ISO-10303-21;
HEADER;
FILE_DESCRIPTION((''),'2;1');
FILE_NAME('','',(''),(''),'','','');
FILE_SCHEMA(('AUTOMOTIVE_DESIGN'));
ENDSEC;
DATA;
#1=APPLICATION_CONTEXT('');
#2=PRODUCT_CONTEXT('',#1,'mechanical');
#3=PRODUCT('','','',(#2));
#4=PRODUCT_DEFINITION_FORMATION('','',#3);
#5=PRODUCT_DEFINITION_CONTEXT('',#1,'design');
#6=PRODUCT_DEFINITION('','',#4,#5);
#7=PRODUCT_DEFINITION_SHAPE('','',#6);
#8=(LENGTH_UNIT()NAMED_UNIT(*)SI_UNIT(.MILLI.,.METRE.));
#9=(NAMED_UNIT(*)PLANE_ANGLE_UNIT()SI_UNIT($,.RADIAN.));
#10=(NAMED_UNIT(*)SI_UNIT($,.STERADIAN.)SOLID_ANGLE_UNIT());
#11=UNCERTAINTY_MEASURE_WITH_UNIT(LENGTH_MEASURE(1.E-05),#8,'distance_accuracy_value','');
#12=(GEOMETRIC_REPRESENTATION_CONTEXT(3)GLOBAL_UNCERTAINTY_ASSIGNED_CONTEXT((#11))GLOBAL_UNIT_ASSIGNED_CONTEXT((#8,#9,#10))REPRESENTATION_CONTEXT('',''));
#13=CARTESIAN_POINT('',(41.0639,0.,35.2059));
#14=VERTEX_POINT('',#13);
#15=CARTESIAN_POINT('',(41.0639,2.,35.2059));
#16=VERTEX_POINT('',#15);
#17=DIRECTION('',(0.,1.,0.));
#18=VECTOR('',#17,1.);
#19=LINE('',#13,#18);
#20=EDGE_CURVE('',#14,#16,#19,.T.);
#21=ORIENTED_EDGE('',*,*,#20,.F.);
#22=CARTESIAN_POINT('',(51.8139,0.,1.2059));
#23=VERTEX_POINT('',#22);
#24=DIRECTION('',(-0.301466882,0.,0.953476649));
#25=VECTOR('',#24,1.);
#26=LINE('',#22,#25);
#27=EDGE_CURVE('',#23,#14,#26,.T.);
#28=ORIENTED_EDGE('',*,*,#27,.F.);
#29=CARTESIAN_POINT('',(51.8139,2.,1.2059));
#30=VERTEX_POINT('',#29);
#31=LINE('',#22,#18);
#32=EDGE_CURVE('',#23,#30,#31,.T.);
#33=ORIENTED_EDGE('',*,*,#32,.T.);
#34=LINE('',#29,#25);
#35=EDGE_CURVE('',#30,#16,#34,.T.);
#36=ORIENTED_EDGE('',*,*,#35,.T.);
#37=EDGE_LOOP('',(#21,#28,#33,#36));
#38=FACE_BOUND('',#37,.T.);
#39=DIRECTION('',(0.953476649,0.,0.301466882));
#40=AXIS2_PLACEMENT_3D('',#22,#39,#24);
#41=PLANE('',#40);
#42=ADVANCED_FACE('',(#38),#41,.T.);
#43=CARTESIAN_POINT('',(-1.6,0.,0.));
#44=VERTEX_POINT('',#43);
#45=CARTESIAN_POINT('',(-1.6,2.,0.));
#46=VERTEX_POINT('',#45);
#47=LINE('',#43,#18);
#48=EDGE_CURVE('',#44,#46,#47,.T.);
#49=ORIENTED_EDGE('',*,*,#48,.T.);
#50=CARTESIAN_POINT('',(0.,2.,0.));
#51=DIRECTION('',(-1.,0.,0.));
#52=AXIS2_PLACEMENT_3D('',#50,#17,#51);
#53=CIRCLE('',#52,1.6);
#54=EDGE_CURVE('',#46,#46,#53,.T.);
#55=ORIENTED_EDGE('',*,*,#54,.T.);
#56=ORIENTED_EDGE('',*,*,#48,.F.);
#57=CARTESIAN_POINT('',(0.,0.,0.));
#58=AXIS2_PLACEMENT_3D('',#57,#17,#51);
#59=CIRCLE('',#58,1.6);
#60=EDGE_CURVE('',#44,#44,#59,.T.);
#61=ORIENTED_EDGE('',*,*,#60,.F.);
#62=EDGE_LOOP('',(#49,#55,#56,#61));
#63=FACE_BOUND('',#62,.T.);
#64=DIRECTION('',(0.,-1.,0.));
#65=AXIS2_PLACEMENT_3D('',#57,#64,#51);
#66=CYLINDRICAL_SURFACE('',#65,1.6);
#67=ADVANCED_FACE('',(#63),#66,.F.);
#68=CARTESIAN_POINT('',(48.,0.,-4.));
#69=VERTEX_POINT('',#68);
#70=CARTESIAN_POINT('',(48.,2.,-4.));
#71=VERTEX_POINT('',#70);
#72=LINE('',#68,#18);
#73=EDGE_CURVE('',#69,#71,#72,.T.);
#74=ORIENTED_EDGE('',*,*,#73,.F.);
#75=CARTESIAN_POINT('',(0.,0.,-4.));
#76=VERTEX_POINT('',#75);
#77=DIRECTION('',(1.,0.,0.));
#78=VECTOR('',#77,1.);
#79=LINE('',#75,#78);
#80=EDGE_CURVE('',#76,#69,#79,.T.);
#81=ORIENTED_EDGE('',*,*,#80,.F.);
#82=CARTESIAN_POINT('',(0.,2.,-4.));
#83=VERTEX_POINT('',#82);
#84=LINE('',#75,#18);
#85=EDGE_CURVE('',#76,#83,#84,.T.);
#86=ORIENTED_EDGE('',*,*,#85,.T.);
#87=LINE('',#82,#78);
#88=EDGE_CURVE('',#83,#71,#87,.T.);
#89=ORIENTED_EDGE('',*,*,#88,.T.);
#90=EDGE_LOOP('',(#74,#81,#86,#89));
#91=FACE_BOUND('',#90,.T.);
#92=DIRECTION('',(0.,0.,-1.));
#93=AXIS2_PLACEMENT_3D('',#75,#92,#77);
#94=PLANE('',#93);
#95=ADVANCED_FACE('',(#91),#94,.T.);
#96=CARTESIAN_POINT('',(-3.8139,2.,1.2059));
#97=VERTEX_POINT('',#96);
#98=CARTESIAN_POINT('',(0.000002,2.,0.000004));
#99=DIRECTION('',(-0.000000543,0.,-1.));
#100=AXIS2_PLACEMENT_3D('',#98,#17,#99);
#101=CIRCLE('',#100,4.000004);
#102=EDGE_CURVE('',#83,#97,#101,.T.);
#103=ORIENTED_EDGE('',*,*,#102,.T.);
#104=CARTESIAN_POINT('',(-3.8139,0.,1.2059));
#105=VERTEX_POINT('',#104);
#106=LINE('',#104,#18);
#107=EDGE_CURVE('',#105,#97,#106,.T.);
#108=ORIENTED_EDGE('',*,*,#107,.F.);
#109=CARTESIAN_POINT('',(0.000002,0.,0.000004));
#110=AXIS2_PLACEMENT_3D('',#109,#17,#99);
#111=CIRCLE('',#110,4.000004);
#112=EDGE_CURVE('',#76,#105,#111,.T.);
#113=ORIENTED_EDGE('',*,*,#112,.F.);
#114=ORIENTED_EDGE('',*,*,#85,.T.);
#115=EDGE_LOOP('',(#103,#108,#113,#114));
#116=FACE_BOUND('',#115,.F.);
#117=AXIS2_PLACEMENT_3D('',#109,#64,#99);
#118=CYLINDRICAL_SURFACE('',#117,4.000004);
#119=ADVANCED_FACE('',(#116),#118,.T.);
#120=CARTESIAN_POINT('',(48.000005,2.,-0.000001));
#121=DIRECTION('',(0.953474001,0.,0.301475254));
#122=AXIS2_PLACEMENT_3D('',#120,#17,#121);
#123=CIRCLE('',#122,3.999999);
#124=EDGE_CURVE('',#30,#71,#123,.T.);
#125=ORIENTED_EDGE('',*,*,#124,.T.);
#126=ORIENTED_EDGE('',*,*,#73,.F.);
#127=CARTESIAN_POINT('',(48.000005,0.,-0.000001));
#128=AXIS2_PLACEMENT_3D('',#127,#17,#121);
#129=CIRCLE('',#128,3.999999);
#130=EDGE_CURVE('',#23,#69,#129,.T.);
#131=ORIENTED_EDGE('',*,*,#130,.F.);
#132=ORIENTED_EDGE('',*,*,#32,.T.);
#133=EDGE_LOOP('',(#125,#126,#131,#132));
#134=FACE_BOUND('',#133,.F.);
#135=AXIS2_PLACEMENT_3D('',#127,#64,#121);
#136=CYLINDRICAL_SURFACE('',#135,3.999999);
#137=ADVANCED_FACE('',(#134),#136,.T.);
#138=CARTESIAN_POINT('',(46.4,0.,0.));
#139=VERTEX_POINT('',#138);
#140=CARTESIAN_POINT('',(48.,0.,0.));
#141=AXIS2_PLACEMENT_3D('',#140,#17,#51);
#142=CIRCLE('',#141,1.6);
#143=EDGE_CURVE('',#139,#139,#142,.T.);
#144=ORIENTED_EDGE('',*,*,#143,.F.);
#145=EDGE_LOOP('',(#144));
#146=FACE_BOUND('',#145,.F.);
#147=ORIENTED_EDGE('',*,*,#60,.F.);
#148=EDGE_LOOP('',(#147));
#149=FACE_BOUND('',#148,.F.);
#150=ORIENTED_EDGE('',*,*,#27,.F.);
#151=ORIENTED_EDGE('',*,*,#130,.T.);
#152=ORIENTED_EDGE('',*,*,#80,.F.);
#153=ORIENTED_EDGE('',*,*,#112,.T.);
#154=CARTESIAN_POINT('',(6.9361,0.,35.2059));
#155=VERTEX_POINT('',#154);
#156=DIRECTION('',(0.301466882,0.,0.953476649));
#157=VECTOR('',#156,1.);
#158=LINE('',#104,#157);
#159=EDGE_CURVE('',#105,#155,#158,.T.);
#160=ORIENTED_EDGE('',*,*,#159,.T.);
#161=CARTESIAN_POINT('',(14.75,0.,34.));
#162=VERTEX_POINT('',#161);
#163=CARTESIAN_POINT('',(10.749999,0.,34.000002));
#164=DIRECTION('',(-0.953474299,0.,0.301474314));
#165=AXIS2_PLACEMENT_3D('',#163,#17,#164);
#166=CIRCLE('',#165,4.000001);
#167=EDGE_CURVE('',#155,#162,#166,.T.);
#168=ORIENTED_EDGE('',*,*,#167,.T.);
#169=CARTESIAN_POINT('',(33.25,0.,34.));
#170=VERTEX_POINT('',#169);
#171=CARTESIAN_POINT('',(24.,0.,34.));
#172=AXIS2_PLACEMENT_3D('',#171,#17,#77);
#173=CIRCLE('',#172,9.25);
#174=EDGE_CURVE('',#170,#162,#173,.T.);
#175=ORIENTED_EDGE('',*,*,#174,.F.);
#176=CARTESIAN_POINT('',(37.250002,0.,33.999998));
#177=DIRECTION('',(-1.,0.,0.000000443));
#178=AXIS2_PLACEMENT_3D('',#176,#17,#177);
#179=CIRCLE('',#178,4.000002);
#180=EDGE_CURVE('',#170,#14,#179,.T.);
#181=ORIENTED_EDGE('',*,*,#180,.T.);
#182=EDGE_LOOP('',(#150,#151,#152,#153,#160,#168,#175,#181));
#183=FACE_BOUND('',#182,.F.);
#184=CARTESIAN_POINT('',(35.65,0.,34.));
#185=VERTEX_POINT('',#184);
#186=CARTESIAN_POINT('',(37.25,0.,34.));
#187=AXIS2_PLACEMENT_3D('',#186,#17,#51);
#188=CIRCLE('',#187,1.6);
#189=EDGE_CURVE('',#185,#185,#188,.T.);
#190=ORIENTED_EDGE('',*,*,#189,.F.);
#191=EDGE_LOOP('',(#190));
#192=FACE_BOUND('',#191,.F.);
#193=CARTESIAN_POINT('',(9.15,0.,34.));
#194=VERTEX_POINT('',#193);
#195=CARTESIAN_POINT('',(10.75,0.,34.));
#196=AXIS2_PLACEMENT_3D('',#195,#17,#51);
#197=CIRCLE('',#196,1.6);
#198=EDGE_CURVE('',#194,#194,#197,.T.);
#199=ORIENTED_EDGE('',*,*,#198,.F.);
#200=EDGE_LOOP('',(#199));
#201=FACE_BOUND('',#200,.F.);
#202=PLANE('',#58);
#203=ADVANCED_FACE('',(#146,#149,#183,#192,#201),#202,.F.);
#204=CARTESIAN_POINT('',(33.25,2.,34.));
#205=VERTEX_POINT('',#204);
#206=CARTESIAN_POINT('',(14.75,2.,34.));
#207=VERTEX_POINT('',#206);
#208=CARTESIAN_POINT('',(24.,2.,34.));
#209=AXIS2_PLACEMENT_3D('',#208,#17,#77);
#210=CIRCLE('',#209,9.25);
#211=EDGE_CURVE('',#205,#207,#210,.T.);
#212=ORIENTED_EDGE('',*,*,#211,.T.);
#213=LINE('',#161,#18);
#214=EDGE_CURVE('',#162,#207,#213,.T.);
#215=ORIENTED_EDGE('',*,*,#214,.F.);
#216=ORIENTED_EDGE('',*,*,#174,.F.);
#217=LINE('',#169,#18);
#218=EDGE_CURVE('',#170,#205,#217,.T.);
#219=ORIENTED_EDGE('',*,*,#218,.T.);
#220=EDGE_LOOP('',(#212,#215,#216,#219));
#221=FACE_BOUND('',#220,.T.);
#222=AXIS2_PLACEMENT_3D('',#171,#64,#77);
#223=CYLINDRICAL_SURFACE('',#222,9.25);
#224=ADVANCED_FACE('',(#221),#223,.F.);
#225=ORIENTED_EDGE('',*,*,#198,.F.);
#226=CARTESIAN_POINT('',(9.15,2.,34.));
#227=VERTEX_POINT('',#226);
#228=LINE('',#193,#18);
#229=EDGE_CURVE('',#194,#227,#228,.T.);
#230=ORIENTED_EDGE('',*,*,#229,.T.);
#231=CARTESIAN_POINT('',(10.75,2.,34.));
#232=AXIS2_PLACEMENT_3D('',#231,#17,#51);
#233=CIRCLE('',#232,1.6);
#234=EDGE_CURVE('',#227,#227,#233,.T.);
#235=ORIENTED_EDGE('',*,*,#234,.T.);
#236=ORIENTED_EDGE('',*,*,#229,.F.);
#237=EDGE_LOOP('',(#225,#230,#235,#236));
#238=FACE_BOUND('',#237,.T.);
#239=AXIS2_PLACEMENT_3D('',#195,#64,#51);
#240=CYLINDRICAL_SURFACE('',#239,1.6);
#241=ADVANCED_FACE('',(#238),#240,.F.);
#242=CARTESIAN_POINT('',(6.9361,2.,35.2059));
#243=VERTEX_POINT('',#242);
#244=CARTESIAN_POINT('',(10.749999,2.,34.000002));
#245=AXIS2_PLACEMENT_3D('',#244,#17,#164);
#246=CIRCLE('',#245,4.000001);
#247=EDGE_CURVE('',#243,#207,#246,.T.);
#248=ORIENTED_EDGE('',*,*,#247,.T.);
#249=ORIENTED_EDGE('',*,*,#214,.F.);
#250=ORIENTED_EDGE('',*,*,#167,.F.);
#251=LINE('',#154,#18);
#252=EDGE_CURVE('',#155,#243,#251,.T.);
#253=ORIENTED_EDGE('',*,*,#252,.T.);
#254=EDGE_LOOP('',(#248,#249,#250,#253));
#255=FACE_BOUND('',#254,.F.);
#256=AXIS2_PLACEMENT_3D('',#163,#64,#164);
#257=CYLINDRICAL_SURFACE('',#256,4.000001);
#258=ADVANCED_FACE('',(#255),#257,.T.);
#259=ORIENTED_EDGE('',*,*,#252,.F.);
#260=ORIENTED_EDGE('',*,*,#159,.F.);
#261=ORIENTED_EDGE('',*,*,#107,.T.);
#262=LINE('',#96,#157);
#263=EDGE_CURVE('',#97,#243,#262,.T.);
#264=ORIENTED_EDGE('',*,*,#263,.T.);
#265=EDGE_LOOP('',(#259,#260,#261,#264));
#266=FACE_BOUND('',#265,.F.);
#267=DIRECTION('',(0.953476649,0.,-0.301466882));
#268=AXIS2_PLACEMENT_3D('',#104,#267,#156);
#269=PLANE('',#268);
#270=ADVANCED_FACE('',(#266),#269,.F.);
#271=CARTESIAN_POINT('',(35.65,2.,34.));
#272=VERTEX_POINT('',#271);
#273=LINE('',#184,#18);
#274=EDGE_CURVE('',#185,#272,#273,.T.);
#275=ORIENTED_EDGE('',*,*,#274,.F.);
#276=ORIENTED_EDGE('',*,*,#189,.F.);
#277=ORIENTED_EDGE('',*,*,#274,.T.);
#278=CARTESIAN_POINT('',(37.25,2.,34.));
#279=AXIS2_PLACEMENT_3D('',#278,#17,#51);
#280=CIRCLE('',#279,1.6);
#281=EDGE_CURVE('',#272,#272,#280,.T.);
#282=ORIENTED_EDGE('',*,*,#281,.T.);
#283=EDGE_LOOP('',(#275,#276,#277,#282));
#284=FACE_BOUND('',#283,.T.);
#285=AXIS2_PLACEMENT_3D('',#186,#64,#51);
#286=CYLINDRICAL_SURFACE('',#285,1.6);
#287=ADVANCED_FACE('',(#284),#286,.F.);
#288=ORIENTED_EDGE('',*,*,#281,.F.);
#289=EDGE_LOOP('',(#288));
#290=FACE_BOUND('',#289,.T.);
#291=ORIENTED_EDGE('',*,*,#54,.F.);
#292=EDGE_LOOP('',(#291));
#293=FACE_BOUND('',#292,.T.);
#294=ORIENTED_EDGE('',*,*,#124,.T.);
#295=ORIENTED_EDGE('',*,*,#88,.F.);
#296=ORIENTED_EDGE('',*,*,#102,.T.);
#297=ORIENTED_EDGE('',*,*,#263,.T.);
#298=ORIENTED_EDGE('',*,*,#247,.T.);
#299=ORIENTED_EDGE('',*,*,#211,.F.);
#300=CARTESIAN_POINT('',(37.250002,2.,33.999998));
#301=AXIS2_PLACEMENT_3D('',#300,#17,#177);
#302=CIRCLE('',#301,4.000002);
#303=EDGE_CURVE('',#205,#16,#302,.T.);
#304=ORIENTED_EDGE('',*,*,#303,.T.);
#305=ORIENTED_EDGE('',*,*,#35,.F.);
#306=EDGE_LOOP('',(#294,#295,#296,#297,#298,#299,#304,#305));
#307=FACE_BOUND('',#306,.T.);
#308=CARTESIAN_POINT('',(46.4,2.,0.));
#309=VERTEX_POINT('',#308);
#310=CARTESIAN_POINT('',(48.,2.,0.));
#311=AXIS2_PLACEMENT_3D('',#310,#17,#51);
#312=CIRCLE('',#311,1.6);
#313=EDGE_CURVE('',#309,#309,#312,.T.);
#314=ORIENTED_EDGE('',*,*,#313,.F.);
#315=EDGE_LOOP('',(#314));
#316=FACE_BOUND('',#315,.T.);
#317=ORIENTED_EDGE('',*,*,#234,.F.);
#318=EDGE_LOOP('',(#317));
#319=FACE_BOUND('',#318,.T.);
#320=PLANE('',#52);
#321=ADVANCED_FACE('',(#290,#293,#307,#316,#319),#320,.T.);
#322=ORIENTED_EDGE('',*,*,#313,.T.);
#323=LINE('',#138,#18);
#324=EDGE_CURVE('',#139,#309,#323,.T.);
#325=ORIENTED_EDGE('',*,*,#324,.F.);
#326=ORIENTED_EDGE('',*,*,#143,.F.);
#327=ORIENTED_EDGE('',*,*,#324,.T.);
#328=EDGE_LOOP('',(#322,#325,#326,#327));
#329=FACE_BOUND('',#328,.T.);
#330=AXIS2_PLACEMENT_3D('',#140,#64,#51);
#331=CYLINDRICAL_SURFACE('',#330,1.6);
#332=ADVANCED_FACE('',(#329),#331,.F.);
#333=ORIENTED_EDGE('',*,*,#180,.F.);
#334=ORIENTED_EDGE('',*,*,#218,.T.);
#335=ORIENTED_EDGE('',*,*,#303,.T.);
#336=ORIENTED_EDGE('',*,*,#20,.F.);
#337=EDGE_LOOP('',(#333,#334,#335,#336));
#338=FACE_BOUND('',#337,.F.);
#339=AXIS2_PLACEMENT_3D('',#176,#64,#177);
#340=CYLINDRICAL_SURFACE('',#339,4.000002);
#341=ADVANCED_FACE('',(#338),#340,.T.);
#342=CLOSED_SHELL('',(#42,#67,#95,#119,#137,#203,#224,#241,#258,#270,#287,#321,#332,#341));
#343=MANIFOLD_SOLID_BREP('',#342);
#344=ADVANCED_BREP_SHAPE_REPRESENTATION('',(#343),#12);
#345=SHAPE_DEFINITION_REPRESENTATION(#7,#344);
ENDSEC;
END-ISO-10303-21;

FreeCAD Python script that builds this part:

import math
import FreeCAD as App
import Part
import Sketcher
from FreeCAD import Vector

doc = App.newDocument("Part")
body = doc.addObject("PartDesign::Body", "Body")

# Sketch on XZ plane
sketch1 = body.newObject("Sketcher::SketchObject", "Sketch")
sketch1.AttachmentSupport = (doc.getObject("XZ_Plane"), [""])
sketch1.MapMode = "FlatFace"
sketch1.addGeometry([
    Part.LineSegment(Vector(41.0639, 35.2059, 0), Vector(51.8139, 1.2059, 0)),  # 0
    Part.ArcOfCircle(Part.Circle(Vector(48, 0, 0), Vector(0, 0, 1), 4.000004), math.radians(-90), math.radians(17.546201)),  # 1
    Part.LineSegment(Vector(48, -4, 0), Vector(0, -4, 0)),  # 2
    Part.ArcOfCircle(Part.Circle(Vector(0, 0, 0), Vector(0, 0, 1), 4), math.radians(162.453799), math.radians(270)),  # 3
    Part.LineSegment(Vector(-3.8139, 1.2059, 0), Vector(6.9361, 35.2059, 0)),  # 4
    Part.ArcOfCircle(Part.Circle(Vector(10.75, 34, 0), Vector(0, 0, 1), 4.000004), math.radians(0), math.radians(162.453799)),  # 5
    Part.ArcOfCircle(Part.Circle(Vector(24, 34, 0), Vector(0, 0, 1), 9.25), math.radians(180), math.radians(360)),  # 6
    Part.ArcOfCircle(Part.Circle(Vector(37.25, 34, 0), Vector(0, 0, 1), 4), math.radians(17.546201), math.radians(180)),  # 7
    Part.Circle(Vector(48, 0, 0), Vector(0, 0, 1), 1.6),  # 8
    Part.Circle(Vector(0, 0, 0), Vector(0, 0, 1), 1.6),  # 9
    Part.Circle(Vector(37.25, 34, 0), Vector(0, 0, 1), 1.6),  # 10
    Part.Circle(Vector(10.75, 34, 0), Vector(0, 0, 1), 1.6),  # 11
], False)
sketch1.addConstraint([
    Sketcher.Constraint("Tangent", 0, 2, 1, 2),
    Sketcher.Constraint("Tangent", 1, 1, 2, 1),
    Sketcher.Constraint("Tangent", 2, 2, 3, 2),
    Sketcher.Constraint("Tangent", 3, 1, 4, 1),
    Sketcher.Constraint("Tangent", 4, 2, 5, 2),
    Sketcher.Constraint("Tangent", 5, 1, 6, 1),
    Sketcher.Constraint("Tangent", 6, 2, 7, 2),
    Sketcher.Constraint("Tangent", 7, 1, 0, 1),
    Sketcher.Constraint("Horizontal", 2),
    Sketcher.Constraint("Coincident", 3, 3, -1, 1),
    Sketcher.Constraint("Coincident", 9, 3, -1, 1),
    Sketcher.Constraint("Coincident", 8, 3, 1, 3),
    Sketcher.Constraint("Coincident", 10, 3, 7, 3),
    Sketcher.Constraint("Coincident", 11, 3, 5, 3),
    Sketcher.Constraint("Equal", 1, 3),
    Sketcher.Constraint("Equal", 3, 5),
    Sketcher.Constraint("Equal", 5, 7),
    Sketcher.Constraint("Equal", 8, 9),
    Sketcher.Constraint("Equal", 9, 10),
    Sketcher.Constraint("Equal", 10, 11),
    Sketcher.Constraint("Horizontal", 5, 3, 6, 3),
    Sketcher.Constraint("Horizontal", 6, 3, 7, 3),
    Sketcher.Constraint("Horizontal", 0, 2, 3, 1),
    Sketcher.Constraint("Radius", 1, 4.0),
    Sketcher.Constraint("Diameter", 8, 3.2),
    Sketcher.Constraint("DistanceX", 2, 2, 2, 1, 48.0),
    Sketcher.Constraint("DistanceY", -1, 1, 5, 3, 34.0),
    Sketcher.Constraint("Radius", 6, 9.25),
])
pad1 = body.newObject("PartDesign::Pad", "Pad")
pad1.Profile = sketch1
pad1.Length = 2
pad1.Reversed = True

doc.recompute()
